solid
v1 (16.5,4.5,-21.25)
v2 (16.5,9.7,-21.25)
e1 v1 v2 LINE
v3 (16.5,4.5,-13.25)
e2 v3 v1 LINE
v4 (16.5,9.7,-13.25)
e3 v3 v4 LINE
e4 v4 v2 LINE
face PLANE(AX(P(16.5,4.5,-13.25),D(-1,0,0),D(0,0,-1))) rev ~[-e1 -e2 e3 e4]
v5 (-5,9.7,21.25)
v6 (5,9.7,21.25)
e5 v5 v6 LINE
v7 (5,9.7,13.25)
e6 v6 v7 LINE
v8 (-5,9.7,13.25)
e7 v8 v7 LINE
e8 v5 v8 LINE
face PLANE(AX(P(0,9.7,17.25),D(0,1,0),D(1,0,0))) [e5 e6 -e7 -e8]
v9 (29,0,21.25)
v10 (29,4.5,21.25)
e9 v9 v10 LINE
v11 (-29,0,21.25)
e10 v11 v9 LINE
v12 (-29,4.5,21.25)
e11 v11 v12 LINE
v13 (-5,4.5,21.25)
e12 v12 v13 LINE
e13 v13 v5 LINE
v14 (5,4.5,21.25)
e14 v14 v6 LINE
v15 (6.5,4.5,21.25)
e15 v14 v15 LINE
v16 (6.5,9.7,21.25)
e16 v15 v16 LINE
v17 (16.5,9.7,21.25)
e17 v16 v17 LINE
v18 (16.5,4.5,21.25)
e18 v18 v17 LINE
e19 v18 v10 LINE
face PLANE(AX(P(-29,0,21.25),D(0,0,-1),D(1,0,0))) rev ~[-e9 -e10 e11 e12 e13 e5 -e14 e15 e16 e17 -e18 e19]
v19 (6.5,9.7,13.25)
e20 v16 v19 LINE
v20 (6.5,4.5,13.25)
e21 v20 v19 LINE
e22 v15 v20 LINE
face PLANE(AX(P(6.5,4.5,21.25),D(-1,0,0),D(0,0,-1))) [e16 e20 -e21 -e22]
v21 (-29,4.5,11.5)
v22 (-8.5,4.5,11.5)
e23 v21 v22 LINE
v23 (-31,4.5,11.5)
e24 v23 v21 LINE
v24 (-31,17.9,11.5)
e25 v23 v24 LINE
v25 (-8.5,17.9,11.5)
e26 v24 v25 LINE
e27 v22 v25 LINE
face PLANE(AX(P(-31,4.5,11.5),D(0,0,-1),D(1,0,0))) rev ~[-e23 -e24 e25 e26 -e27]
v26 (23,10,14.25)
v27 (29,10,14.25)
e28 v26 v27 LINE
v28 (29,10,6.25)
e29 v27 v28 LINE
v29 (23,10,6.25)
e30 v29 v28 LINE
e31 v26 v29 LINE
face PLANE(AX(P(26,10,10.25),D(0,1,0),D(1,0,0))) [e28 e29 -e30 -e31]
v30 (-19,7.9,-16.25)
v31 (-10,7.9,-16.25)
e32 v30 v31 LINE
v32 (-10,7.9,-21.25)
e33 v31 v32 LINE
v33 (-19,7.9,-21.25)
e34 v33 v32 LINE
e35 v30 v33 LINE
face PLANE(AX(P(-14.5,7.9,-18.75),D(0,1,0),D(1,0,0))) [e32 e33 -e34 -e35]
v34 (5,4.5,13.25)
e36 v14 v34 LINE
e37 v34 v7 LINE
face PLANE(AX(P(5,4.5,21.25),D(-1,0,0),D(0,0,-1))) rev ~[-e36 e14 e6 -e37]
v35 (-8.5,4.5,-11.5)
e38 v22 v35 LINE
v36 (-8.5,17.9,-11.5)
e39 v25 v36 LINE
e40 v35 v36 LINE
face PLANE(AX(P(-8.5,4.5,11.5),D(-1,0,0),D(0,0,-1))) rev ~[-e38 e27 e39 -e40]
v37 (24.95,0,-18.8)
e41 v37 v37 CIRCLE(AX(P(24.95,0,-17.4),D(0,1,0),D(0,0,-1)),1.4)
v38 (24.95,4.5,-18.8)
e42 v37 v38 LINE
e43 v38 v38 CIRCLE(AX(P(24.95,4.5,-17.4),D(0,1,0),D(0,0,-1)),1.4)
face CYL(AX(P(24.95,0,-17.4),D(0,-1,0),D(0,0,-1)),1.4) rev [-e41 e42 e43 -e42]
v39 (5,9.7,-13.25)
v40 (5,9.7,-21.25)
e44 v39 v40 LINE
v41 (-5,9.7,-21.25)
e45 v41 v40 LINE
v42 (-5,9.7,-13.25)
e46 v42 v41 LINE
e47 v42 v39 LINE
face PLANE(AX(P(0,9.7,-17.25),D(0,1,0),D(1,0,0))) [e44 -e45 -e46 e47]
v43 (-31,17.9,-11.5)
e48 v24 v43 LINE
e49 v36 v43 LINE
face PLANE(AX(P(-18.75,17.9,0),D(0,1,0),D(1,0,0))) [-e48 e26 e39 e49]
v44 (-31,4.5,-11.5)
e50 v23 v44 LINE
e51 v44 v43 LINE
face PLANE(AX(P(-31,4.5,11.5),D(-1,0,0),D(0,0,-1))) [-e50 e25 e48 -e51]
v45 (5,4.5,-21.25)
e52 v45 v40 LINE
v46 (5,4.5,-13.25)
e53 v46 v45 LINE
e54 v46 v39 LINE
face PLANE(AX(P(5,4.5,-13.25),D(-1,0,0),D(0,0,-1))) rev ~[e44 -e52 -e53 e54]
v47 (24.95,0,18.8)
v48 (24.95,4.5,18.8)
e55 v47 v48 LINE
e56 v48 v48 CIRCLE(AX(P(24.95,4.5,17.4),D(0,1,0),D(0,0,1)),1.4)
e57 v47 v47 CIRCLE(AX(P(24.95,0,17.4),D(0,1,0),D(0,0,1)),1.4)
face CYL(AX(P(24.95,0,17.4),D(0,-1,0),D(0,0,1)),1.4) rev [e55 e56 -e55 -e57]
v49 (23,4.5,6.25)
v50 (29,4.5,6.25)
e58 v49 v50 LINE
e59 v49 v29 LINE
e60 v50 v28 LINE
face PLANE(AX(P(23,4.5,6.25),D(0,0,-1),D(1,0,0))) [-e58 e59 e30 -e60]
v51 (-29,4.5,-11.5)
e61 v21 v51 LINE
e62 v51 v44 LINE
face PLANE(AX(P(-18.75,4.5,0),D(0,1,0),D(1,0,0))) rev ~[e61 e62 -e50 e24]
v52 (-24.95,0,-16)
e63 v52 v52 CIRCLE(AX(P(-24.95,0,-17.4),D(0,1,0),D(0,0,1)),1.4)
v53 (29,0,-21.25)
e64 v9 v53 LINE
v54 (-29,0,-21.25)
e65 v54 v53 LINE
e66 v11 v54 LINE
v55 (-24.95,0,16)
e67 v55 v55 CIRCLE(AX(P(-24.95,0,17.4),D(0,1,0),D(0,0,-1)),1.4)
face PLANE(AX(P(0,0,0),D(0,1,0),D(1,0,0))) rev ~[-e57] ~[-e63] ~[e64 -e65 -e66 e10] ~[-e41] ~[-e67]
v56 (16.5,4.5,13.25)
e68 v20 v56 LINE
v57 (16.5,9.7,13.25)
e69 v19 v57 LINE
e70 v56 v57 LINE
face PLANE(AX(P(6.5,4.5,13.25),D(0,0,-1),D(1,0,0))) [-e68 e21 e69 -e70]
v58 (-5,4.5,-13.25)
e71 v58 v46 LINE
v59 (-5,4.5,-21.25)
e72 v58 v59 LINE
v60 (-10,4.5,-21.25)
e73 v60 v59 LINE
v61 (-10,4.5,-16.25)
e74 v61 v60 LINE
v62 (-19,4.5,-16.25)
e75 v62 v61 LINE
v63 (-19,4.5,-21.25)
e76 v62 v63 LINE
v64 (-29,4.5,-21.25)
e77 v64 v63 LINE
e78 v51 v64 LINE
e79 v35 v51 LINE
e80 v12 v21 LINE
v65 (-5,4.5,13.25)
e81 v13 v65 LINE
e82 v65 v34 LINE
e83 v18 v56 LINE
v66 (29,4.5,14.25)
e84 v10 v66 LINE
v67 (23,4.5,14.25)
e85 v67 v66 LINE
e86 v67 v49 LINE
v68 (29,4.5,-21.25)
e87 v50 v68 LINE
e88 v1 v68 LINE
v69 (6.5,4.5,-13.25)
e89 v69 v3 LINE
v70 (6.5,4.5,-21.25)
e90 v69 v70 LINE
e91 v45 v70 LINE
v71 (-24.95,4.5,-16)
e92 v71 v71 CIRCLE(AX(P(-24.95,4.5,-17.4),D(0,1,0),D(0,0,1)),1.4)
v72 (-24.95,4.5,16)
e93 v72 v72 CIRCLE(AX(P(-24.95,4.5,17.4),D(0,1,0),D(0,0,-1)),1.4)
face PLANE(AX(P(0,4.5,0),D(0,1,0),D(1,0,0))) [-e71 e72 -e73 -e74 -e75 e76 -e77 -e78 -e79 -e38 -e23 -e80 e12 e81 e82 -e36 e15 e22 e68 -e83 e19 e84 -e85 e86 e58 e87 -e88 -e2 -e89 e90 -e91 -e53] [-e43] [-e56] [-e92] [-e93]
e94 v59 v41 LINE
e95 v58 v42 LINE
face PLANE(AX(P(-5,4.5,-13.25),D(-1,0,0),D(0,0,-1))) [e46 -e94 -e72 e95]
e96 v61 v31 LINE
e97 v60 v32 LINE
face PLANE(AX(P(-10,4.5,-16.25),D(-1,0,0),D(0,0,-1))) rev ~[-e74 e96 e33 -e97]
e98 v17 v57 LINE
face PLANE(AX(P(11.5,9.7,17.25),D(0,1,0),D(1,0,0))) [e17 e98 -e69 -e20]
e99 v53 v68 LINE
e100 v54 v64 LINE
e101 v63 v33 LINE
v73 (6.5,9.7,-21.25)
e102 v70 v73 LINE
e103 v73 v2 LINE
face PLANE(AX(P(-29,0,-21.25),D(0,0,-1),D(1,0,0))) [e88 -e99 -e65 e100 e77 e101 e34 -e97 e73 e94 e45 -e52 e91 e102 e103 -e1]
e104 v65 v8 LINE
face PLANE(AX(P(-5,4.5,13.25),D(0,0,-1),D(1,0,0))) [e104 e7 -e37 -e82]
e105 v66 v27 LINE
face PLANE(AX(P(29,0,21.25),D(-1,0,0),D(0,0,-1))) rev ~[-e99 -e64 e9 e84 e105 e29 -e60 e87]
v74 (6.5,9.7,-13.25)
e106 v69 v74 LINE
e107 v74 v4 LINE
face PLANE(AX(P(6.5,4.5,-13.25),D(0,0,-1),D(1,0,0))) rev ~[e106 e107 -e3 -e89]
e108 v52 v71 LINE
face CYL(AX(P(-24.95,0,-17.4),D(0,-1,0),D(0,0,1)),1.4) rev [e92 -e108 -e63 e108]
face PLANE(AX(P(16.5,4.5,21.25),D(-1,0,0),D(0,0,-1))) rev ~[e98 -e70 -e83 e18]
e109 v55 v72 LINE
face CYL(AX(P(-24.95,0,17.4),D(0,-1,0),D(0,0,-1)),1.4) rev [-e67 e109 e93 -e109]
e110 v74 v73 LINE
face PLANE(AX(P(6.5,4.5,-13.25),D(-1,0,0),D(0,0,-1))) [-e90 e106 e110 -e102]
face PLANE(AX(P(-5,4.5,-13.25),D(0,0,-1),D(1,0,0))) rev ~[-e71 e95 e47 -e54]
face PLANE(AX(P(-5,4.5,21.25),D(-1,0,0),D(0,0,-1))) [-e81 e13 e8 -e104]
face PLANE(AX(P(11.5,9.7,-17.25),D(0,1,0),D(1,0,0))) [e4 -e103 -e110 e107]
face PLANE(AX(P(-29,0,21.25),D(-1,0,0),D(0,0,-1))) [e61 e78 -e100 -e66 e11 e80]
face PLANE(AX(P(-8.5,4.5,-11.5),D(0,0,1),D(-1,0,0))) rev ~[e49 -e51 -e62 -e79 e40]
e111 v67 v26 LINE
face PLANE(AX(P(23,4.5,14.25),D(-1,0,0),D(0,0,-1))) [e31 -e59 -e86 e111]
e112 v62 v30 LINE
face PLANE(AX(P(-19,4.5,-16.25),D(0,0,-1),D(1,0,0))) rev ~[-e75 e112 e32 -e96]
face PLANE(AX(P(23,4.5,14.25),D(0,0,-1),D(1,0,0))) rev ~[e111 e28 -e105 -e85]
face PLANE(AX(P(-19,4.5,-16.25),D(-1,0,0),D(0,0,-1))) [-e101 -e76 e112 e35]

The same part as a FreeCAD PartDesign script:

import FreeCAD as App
import Part
import Sketcher

V = App.Vector
Q = App.Units.Quantity

doc = App.newDocument("Part")
body = doc.addObject("PartDesign::Body", "Body")

sketch1 = body.newObject("Sketcher::SketchObject", "Sketch")
sketch1.AttachmentSupport = (doc.getObject("XZ_Plane"), [""])
sketch1.MapMode = "FlatFace"
sketch1.addGeometry([
    Part.LineSegment(V(-29, -21.2, 0), V(-29, 21.2, 0)),
    Part.LineSegment(V(-29, 21.2, 0), V(29, 21.2, 0)),
    Part.LineSegment(V(29, 21.2, 0), V(29, -21.2, 0)),
    Part.LineSegment(V(29, -21.2, 0), V(-29, -21.2, 0)),
    Part.Circle(V(-24.9, 17.4, 0), V(0, 0, 1), 1.4),
    Part.Circle(V(24.9, 17.4, 0), V(0, 0, 1), 1.4),
    Part.Circle(V(-24.9, -17.4, 0), V(0, 0, 1), 1.4),
    Part.Circle(V(24.9, -17.4, 0), V(0, 0, 1), 1.4),
], False)
sketch1.addConstraint([
    Sketcher.Constraint("Coincident", 0, 2, 1, 1),
    Sketcher.Constraint("Coincident", 1, 2, 2, 1),
    Sketcher.Constraint("Coincident", 2, 2, 3, 1),
    Sketcher.Constraint("Coincident", 3, 2, 0, 1),
    Sketcher.Constraint("Vertical", 0),
    Sketcher.Constraint("Horizontal", 1),
    Sketcher.Constraint("Vertical", 2),
    Sketcher.Constraint("Horizontal", 3),
    Sketcher.Constraint("Equal", 4, 5),
    Sketcher.Constraint("Equal", 5, 6),
    Sketcher.Constraint("Equal", 6, 7),
    Sketcher.Constraint("Symmetric", 5, 3, 6, 3, -1, 1),
    Sketcher.Constraint("Symmetric", 4, 3, 7, 3, -1, 1),
    Sketcher.Constraint("Symmetric", 0, 2, 2, 2, -1, 1),
    Sketcher.Constraint("Symmetric", 4, 3, 5, 3, -2),
    Sketcher.Constraint("Diameter", 4, Q("2.8 mm")),
    Sketcher.Constraint("DistanceX", 1, 1, 1, 2, Q("58 mm")),
    Sketcher.Constraint("DistanceY", 0, 1, 0, 2, Q("42.5 mm")),
    Sketcher.Constraint("DistanceY", -1, 1, 4, 3, Q("17.4 mm")),
    Sketcher.Constraint("DistanceX", 4, 3, 5, 3, Q("49.9 mm")),
])
pad1 = body.newObject("PartDesign::Pad", "Pad")
pad1.Profile = sketch1
pad1.Length = 4.5
pad1.Reversed = True

sketch2 = body.newObject("Sketcher::SketchObject", "Sketch001")
sketch2.AttachmentSupport = (doc.getObject("XZ_Plane"), [""])
sketch2.MapMode = "FlatFace"
sketch2.AttachmentOffset = App.Placement(V(0, 0, -4.5), App.Rotation())
sketch2.addGeometry([
    Part.LineSegment(V(-8, 12, 0), V(-8, -12, 0)),
    Part.LineSegment(V(-8, -12, 0), V(-31, -12, 0)),
    Part.LineSegment(V(-31, -12, 0), V(-31, 12, 0)),
    Part.LineSegment(V(-31, 12, 0), V(-8, 12, 0)),
], False)
sketch2.addConstraint([
    Sketcher.Constraint("Coincident", 0, 2, 1, 1),
    Sketcher.Constraint("Coincident", 1, 2, 2, 1),
    Sketcher.Constraint("Coincident", 2, 2, 3, 1),
    Sketcher.Constraint("Coincident", 3, 2, 0, 1),
    Sketcher.Constraint("Vertical", 0),
    Sketcher.Constraint("Horizontal", 1),
    Sketcher.Constraint("Vertical", 2),
    Sketcher.Constraint("Horizontal", 3),
    Sketcher.Constraint("DistanceY", 0, 2, 0, 1, Q("23 mm")),
    Sketcher.Constraint("DistanceX", 1, 2, 1, 1, Q("22.5 mm")),
    Sketcher.Constraint("DistanceX", 1, 2, -1, 1, Q("31 mm")),
    Sketcher.Constraint("DistanceY", 0, 2, -1, 1, Q("11.5 mm")),
])
pad2 = body.newObject("PartDesign::Pad", "Pad001")
pad2.Profile = sketch2
pad2.Length = 13.4
pad2.Reversed = True

sketch3 = body.newObject("Sketcher::SketchObject", "Sketch002")
sketch3.AttachmentSupport = (doc.getObject("XZ_Plane"), [""])
sketch3.MapMode = "FlatFace"
sketch3.AttachmentOffset = App.Placement(V(0, 0, -4.5), App.Rotation())
sketch3.addGeometry([
    Part.LineSegment(V(-5, -21, 0), V(-5, -13, 0)),
    Part.LineSegment(V(-5, -13, 0), V(5, -13, 0)),
    Part.LineSegment(V(5, -13, 0), V(5, -21, 0)),
    Part.LineSegment(V(5, -21, 0), V(-5, -21, 0)),
    Part.LineSegment(V(6, -21, 0), V(6, -13, 0)),
    Part.LineSegment(V(6, -13, 0), V(16, -13, 0)),
    Part.LineSegment(V(16, -13, 0), V(16, -21, 0)),
    Part.LineSegment(V(16, -21, 0), V(6, -21, 0)),
    Part.LineSegment(V(-5, 13, 0), V(-5, 21, 0)),
    Part.LineSegment(V(-5, 21, 0), V(5, 21, 0)),
    Part.LineSegment(V(5, 21, 0), V(5, 13, 0)),
    Part.LineSegment(V(5, 13, 0), V(-5, 13, 0)),
    Part.LineSegment(V(6, 13, 0), V(6, 21, 0)),
    Part.LineSegment(V(6, 21, 0), V(16, 21, 0)),
    Part.LineSegment(V(16, 21, 0), V(16, 13, 0)),
    Part.LineSegment(V(16, 13, 0), V(6, 13, 0)),
], False)
sketch3.addConstraint([
    Sketcher.Constraint("Coincident", 0, 2, 1, 1),
    Sketcher.Constraint("Coincident", 1, 2, 2, 1),
    Sketcher.Constraint("Coincident", 2, 2, 3, 1),
    Sketcher.Constraint("Coincident", 3, 2, 0, 1),
    Sketcher.Constraint("Coincident", 4, 2, 5, 1),
    Sketcher.Constraint("Coincident", 5, 2, 6, 1),
    Sketcher.Constraint("Coincident", 6, 2, 7, 1),
    Sketcher.Constraint("Coincident", 7, 2, 4, 1),
    Sketcher.Constraint("Coincident", 8, 2, 9, 1),
    Sketcher.Constraint("Coincident", 9, 2, 10, 1),
    Sketcher.Constraint("Coincident", 10, 2, 11, 1),
    Sketcher.Constraint("Coincident", 11, 2, 8, 1),
    Sketcher.Constraint("Coincident", 12, 2, 13, 1),
    Sketcher.Constraint("Coincident", 13, 2, 14, 1),
    Sketcher.Constraint("Coincident", 14, 2, 15, 1),
    Sketcher.Constraint("Coincident", 15, 2, 12, 1),
    Sketcher.Constraint("Vertical", 0),
    Sketcher.Constraint("Horizontal", 1),
    Sketcher.Constraint("Vertical", 2),
    Sketcher.Constraint("Horizontal", 3),
    Sketcher.Constraint("Vertical", 4),
    Sketcher.Constraint("Horizontal", 5),
    Sketcher.Constraint("Vertical", 6),
    Sketcher.Constraint("Horizontal", 7),
    Sketcher.Constraint("Vertical", 8),
    Sketcher.Constraint("Horizontal", 9),
    Sketcher.Constraint("Vertical", 10),
    Sketcher.Constraint("Horizontal", 11),
    Sketcher.Constraint("Vertical", 12),
    Sketcher.Constraint("Horizontal", 13),
    Sketcher.Constraint("Vertical", 14),
    Sketcher.Constraint("Horizontal", 15),
    Sketcher.Constraint("Symmetric", 2, 2, 8, 2, -1, 1),
    Sketcher.Constraint("Symmetric", 0, 2, 10, 2, -1, 1),
    Sketcher.Constraint("Symmetric", 7, 2, 12, 2, -1),
    Sketcher.Constraint("Symmetric", 5, 2, 14, 2, -1),
    Sketcher.Constraint("Horizontal", 1, 2, 4, 2),
    Sketcher.Constraint("Horizontal", 3, 2, 6, 2),
    Sketcher.Constraint("Vertical", 3, 2, 8, 2),
    Sketcher.Constraint("Equal", 3, 5),
    Sketcher.Constraint("DistanceX", 1, 1, 1, 2, Q("10 mm")),
    Sketcher.Constraint("DistanceY", 0, 1, 0, 2, Q("8 mm")),
    Sketcher.Constraint("DistanceX", -1, 1, 4, 2, Q("6.5 mm")),
    Sketcher.Constraint("DistanceY", 0, 2, 8, 2, Q("34.5 mm")),
])
pad3 = body.newObject("PartDesign::Pad", "Pad002")
pad3.Profile = sketch3
pad3.Length = 5.2
pad3.Reversed = True

sketch4 = body.newObject("Sketcher::SketchObject", "Sketch003")
sketch4.AttachmentSupport = (doc.getObject("XZ_Plane"), [""])
sketch4.MapMode = "FlatFace"
sketch4.AttachmentOffset = App.Placement(V(0, 0, -4.5), App.Rotation())
sketch4.addGeometry([
    Part.LineSegment(V(23, 6, 0), V(23, 14, 0)),
    Part.LineSegment(V(23, 14, 0), V(29, 14, 0)),
    Part.LineSegment(V(29, 14, 0), V(29, 6, 0)),
    Part.LineSegment(V(29, 6, 0), V(23, 6, 0)),
], False)
sketch4.addConstraint([
    Sketcher.Constraint("Coincident", 0, 2, 1, 1),
    Sketcher.Constraint("Coincident", 1, 2, 2, 1),
    Sketcher.Constraint("Coincident", 2, 2, 3, 1),
    Sketcher.Constraint("Coincident", 3, 2, 0, 1),
    Sketcher.Constraint("Vertical", 0),
    Sketcher.Constraint("Horizontal", 1),
    Sketcher.Constraint("Vertical", 2),
    Sketcher.Constraint("Horizontal", 3),
    Sketcher.Constraint("DistanceX", 1, 1, 1, 2, Q("6 mm")),
    Sketcher.Constraint("DistanceY", 0, 1, 0, 2, Q("8 mm")),
    Sketcher.Constraint("DistanceX", -1, 1, 0, 2, Q("23 mm")),
    Sketcher.Constraint("DistanceY", -1, 1, 0, 2, Q("14.25 mm")),
])
pad4 = body.newObject("PartDesign::Pad", "Pad003")
pad4.Profile = sketch4
pad4.Length = 5.5
pad4.Reversed = True

sketch5 = body.newObject("Sketcher::SketchObject", "Sketch004")
sketch5.AttachmentSupport = (doc.getObject("XZ_Plane"), [""])
sketch5.MapMode = "FlatFace"
sketch5.AttachmentOffset = App.Placement(V(0, 0, -4.5), App.Rotation())
sketch5.addGeometry([
    Part.LineSegment(V(-19, -21, 0), V(-19, -16, 0)),
    Part.LineSegment(V(-19, -16, 0), V(-10, -16, 0)),
    Part.LineSegment(V(-10, -16, 0), V(-10, -21, 0)),
    Part.LineSegment(V(-10, -21, 0), V(-19, -21, 0)),
], False)
sketch5.addConstraint([
    Sketcher.Constraint("Coincident", 0, 2, 1, 1),
    Sketcher.Constraint("Coincident", 1, 2, 2, 1),
    Sketcher.Constraint("Coincident", 2, 2, 3, 1),
    Sketcher.Constraint("Coincident", 3, 2, 0, 1),
    Sketcher.Constraint("Vertical", 0),
    Sketcher.Constraint("Horizontal", 1),
    Sketcher.Constraint("Vertical", 2),
    Sketcher.Constraint("Horizontal", 3),
    Sketcher.Constraint("DistanceX", 1, 1, 1, 2, Q("9 mm")),
    Sketcher.Constraint("DistanceY", 0, 1, 0, 2, Q("5 mm")),
    Sketcher.Constraint("DistanceX", 0, 2, -1, 1, Q("19 mm")),
    Sketcher.Constraint("DistanceY", 0, 2, -1, 1, Q("16.25 mm")),
])
pad5 = body.newObject("PartDesign::Pad", "Pad004")
pad5.Profile = sketch5
pad5.Length = 3.4
pad5.Reversed = True

doc.recompute()
